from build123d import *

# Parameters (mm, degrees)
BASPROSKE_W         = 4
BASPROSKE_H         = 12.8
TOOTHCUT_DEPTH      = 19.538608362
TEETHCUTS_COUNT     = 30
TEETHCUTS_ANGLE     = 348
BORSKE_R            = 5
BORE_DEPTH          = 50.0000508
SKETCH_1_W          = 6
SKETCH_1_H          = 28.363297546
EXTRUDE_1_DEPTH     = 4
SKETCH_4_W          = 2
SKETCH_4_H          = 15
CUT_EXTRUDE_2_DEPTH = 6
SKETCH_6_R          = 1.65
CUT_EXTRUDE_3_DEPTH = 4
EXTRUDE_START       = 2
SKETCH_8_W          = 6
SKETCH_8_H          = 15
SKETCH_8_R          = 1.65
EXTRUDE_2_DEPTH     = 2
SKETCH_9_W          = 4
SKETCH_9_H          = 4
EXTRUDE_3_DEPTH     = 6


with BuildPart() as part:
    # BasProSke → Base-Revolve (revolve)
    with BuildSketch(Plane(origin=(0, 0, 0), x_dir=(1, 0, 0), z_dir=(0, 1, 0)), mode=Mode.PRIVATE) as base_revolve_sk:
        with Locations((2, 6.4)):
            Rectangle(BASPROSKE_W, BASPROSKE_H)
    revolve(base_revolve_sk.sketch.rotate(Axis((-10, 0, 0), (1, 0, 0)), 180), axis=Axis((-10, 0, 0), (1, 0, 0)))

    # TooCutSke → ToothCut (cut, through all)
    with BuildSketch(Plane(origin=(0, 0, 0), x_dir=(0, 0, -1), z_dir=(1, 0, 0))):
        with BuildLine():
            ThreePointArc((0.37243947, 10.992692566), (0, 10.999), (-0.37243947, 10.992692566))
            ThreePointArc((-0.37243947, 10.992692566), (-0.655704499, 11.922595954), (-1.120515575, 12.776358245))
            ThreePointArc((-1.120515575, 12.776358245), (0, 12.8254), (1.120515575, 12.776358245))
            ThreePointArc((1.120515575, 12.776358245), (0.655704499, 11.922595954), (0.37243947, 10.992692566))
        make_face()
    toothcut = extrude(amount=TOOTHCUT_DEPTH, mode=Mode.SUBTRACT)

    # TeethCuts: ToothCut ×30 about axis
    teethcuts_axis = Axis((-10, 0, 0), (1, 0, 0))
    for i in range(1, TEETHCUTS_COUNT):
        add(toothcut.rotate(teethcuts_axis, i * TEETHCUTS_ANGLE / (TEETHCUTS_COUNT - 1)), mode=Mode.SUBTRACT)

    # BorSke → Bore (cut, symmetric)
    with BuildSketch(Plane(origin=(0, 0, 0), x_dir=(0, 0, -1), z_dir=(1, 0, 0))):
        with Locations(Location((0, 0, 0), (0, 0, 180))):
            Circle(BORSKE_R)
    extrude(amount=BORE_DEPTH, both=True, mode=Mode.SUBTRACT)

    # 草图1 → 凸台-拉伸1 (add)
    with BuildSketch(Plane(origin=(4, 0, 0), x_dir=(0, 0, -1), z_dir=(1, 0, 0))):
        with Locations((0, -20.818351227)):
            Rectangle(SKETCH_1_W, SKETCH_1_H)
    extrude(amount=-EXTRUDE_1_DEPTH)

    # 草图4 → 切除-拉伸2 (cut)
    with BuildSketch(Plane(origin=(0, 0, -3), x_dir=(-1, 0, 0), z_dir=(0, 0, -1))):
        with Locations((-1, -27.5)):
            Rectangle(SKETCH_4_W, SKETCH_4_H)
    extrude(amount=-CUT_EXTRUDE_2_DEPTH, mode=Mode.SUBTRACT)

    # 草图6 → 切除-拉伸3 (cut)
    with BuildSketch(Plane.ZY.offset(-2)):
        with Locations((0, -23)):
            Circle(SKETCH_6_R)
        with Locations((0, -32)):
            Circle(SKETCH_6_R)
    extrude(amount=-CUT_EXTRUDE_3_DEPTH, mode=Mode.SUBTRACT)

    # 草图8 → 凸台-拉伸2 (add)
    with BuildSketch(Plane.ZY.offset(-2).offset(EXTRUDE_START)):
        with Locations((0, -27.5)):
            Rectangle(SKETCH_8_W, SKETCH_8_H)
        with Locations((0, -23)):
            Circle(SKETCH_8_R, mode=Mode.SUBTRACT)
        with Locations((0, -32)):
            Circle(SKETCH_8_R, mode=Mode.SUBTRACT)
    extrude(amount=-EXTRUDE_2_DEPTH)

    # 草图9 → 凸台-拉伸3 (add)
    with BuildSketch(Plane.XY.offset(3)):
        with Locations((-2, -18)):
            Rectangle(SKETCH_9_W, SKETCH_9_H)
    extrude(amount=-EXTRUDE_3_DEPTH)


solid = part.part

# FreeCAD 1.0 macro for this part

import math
import FreeCAD as App
import Part
import Sketcher

V = App.Vector
Q = App.Units.Quantity


def add_polygon(sketch, points):
    """Adds a closed chain of lines whose ends are joined by coincident constraints."""
    first, n = sketch.GeometryCount, len(points)
    for a, b in zip(points, points[1:] + points[:1]):
        sketch.addGeometry(Part.LineSegment(App.Vector(*a, 0), App.Vector(*b, 0)), False)
    for i in range(n):
        sketch.addConstraint(Sketcher.Constraint("Coincident", first + i, 2, first + (i + 1) % n, 1))

doc = App.newDocument("Part")
body = doc.addObject("PartDesign::Body", "Body")

# Sketch on XZ plane
sketch1 = body.newObject("Sketcher::SketchObject", "Sketch")
sketch1.AttachmentSupport = (doc.getObject("XZ_Plane"), [""])
sketch1.MapMode = "FlatFace"
add_polygon(sketch1, [(0, -12.8), (0, 0), (4, 0), (4, -12.8)])  # lines 0-3
sketch1.addConstraint([
    Sketcher.Constraint("Vertical", 0),
    Sketcher.Constraint("Horizontal", 1),
    Sketcher.Constraint("Vertical", 2),
    Sketcher.Constraint("Horizontal", 3),
    Sketcher.Constraint("Coincident", 0, 2, -1, 1),
    Sketcher.Constraint("DistanceX", 1, 1, 1, 2, Q("4 mm")),
    Sketcher.Constraint("DistanceY", 0, 1, 0, 2, Q("12.8 mm")),
])
revolution = body.newObject("PartDesign::Revolution", "Revolution")
revolution.Profile = sketch1
revolution.ReferenceAxis = (sketch1, ["H_Axis"])
revolution.Angle = 360

# Sketch on YZ plane
sketch2 = body.newObject("Sketcher::SketchObject", "Sketch001")
sketch2.AttachmentSupport = (doc.getObject("YZ_Plane"), [""])
sketch2.MapMode = "FlatFace"
sketch2.addGeometry([
    Part.ArcOfCircle(Part.Circle(V(0, 0, 0), V(0, 0, 1), 11), math.radians(-1.94), math.radians(1.94)),
    Part.ArcOfCircle(Part.Circle(V(10.1, -5.1, 0), V(0, 0, 1), 4.8), math.radians(56), math.radians(79)),
    Part.ArcOfCircle(Part.Circle(V(0, 0, 0), V(0, 0, 1), 12.8), math.radians(-5.01), math.radians(5.01)),
    Part.ArcOfCircle(Part.Circle(V(10.1, 5.1, 0), V(0, 0, 1), 4.8), math.radians(-79), math.radians(-56)),
], False)
sketch2.addConstraint([
    Sketcher.Constraint("Coincident", 0, 1, 1, 2),
    Sketcher.Constraint("Coincident", 1, 1, 2, 1),
    Sketcher.Constraint("Coincident", 2, 2, 3, 2),
    Sketcher.Constraint("Coincident", 3, 1, 0, 2),
    Sketcher.Constraint("Coincident", 0, 3, -1, 1),
    Sketcher.Constraint("Coincident", 2, 3, -1, 1),
    Sketcher.Constraint("Equal", 1, 3),
    Sketcher.Constraint("Symmetric", 1, 3, 3, 3, -1),
    Sketcher.Constraint("Radius", 1, Q("4.8 mm")),
    Sketcher.Constraint("Radius", 0, Q("10.999001 mm")),
    Sketcher.Constraint("Radius", 2, Q("12.8254 mm")),
    Sketcher.Constraint("DistanceY", 0, 1, 3, 3, Q("5.4546 mm")),
    Sketcher.Constraint("DistanceY", 1, 3, -1, 1, Q("5.08216 mm")),
])
pocket1 = body.newObject("PartDesign::Pocket", "Pocket")
pocket1.Profile = sketch2
pocket1.Type = "ThroughAll"
pocket1.Reversed = True
doc.recompute()

polarpattern = body.newObject("PartDesign::PolarPattern", "PolarPattern")
polarpattern.Originals = [pocket1]
polarpattern.Axis = (doc.getObject("X_Axis"), [""])
polarpattern.Angle = 360
polarpattern.Occurrences = 30
body.Tip = polarpattern

# Sketch on YZ plane
sketch3 = body.newObject("Sketcher::SketchObject", "Sketch002")
sketch3.AttachmentSupport = (doc.getObject("YZ_Plane"), [""])
sketch3.MapMode = "FlatFace"
sketch3.addGeometry(Part.Circle(V(0, 0, 0), V(0, 0, 1), 5), False)
sketch3.addConstraint([
    Sketcher.Constraint("Coincident", 0, 3, -1, 1),
    Sketcher.Constraint("Diameter", 0, Q("10 mm")),
])
pocket2 = body.newObject("PartDesign::Pocket", "Pocket001")
pocket2.Profile = sketch3
pocket2.Length = 100.000102
pocket2.Midplane = True

# Sketch on YZ plane
sketch4 = body.newObject("Sketcher::SketchObject", "Sketch003")
sketch4.AttachmentSupport = (doc.getObject("YZ_Plane"), [""])
sketch4.MapMode = "FlatFace"
sketch4.AttachmentOffset = App.Placement(V(0, 0, 4), App.Rotation())
add_polygon(sketch4, [(-7, 3), (-35, 3), (-35, -3), (-7, -3)])  # lines 0-3
sketch4.addConstraint([
    Sketcher.Constraint("Horizontal", 0),
    Sketcher.Constraint("Vertical", 1),
    Sketcher.Constraint("Horizontal", 2),
    Sketcher.Constraint("Vertical", 3),
    Sketcher.Constraint("DistanceY", 1, 2, 1, 1, Q("6 mm")),
    Sketcher.Constraint("DistanceX", 0, 2, -1, 1, Q("35 mm")),
    Sketcher.Constraint("DistanceY", -1, 1, 0, 2, Q("3 mm")),
    Sketcher.Constraint("DistanceX", 0, 2, 0, 1, Q("28.363298 mm")),
])
pad1 = body.newObject("PartDesign::Pad", "Pad")
pad1.Profile = sketch4
pad1.Length = 4
pad1.Reversed = True

# Sketch on XY plane
sketch5 = body.newObject("Sketcher::SketchObject", "Sketch004")
sketch5.AttachmentSupport = (doc.getObject("XY_Plane"), [""])
sketch5.MapMode = "FlatFace"
sketch5.AttachmentOffset = App.Placement(V(0, 0, -3), App.Rotation())
add_polygon(sketch5, [(2, -20), (2, -35), (0, -35), (0, -20)])  # lines 0-3
sketch5.addConstraint([
    Sketcher.Constraint("Vertical", 0),
    Sketcher.Constraint("Horizontal", 1),
    Sketcher.Constraint("Vertical", 2),
    Sketcher.Constraint("Horizontal", 3),
    Sketcher.Constraint("PointOnObject", 1, 2, -2),
    Sketcher.Constraint("DistanceX", 1, 2, 1, 1, Q("2 mm")),
    Sketcher.Constraint("DistanceY", 0, 2, 0, 1, Q("15 mm")),
    Sketcher.Constraint("DistanceY", 0, 2, -1, 1, Q("35 mm")),
])
pocket3 = body.newObject("PartDesign::Pocket", "Pocket002")
pocket3.Profile = sketch5
pocket3.Length = 6
pocket3.Reversed = True

# Sketch on YZ plane
sketch6 = body.newObject("Sketcher::SketchObject", "Sketch005")
sketch6.AttachmentSupport = (doc.getObject("YZ_Plane"), [""])
sketch6.MapMode = "FlatFace"
sketch6.AttachmentOffset = App.Placement(V(0, 0, 2), App.Rotation())
sketch6.addGeometry([
    Part.Circle(V(-23, 0, 0), V(0, 0, 1), 1.6),
    Part.Circle(V(-32, 0, 0), V(0, 0, 1), 1.6),
], False)
sketch6.addConstraint([
    Sketcher.Constraint("Equal", 0, 1),
    Sketcher.Constraint("PointOnObject", 0, 3, -1),
    Sketcher.Constraint("PointOnObject", 1, 3, -1),
    Sketcher.Constraint("Diameter", 0, Q("3.3 mm")),
    Sketcher.Constraint("DistanceX", 0, 3, -1, 1, Q("23 mm")),
    Sketcher.Constraint("DistanceX", 1, 3, -1, 1, Q("32 mm")),
])
pocket4 = body.newObject("PartDesign::Pocket", "Pocket003")
pocket4.Profile = sketch6
pocket4.Length = 4
pocket4.Reversed = True

# Sketch on YZ plane
sketch7 = body.newObject("Sketcher::SketchObject", "Sketch006")
sketch7.AttachmentSupport = (doc.getObject("YZ_Plane"), [""])
sketch7.MapMode = "FlatFace"
add_polygon(sketch7, [(-20, -3), (-35, -3), (-35, 3), (-20, 3)])  # lines 0-3
sketch7.addGeometry(Part.Circle(V(-32, 0, 0), V(0, 0, 1), 1.6), False)  # 4
sketch7.addGeometry(Part.Circle(V(-23, 0, 0), V(0, 0, 1), 1.6), False)  # 5
sketch7.addConstraint([
    Sketcher.Constraint("Horizontal", 0),
    Sketcher.Constraint("Vertical", 1),
    Sketcher.Constraint("Horizontal", 2),
    Sketcher.Constraint("Vertical", 3),
    Sketcher.Constraint("Equal", 4, 5),
    Sketcher.Constraint("PointOnObject", 4, 3, -1),
    Sketcher.Constraint("PointOnObject", 5, 3, -1),
    Sketcher.Constraint("Diameter", 4, Q("3.3 mm")),
    Sketcher.Constraint("DistanceX", 0, 2, 0, 1, Q("15 mm")),
    Sketcher.Constraint("DistanceY", 1, 1, 1, 2, Q("6 mm")),
    Sketcher.Constraint("DistanceX", 4, 3, -1, 1, Q("32 mm")),
    Sketcher.Constraint("DistanceX", 5, 3, -1, 1, Q("23 mm")),
    Sketcher.Constraint("DistanceX", 0, 2, -1, 1, Q("35 mm")),
    Sketcher.Constraint("DistanceY", 0, 2, -1, 1, Q("3 mm")),
])
pad2 = body.newObject("PartDesign::Pad", "Pad001")
pad2.Profile = sketch7
pad2.Length = 2

# Sketch on XY plane
sketch8 = body.newObject("Sketcher::SketchObject", "Sketch007")
sketch8.AttachmentSupport = (doc.getObject("XY_Plane"), [""])
sketch8.MapMode = "FlatFace"
sketch8.AttachmentOffset = App.Placement(V(0, 0, 3), App.Rotation())
add_polygon(sketch8, [(-4, -16), (-4, -20), (0, -20), (0, -16)])  # lines 0-3
sketch8.addConstraint([
    Sketcher.Constraint("Vertical", 0),
    Sketcher.Constraint("Horizontal", 1),
    Sketcher.Constraint("Vertical", 2),
    Sketcher.Constraint("Horizontal", 3),
    Sketcher.Constraint("PointOnObject", 1, 2, -2),
    Sketcher.Constraint("Equal", 3, 0),
    Sketcher.Constraint("DistanceX", 1, 1, 1, 2, Q("4 mm")),
    Sketcher.Constraint("DistanceY", 0, 2, -1, 1, Q("20 mm")),
])
pad3 = body.newObject("PartDesign::Pad", "Pad002")
pad3.Profile = sketch8
pad3.Length = 6
pad3.Reversed = True

doc.recompute()
